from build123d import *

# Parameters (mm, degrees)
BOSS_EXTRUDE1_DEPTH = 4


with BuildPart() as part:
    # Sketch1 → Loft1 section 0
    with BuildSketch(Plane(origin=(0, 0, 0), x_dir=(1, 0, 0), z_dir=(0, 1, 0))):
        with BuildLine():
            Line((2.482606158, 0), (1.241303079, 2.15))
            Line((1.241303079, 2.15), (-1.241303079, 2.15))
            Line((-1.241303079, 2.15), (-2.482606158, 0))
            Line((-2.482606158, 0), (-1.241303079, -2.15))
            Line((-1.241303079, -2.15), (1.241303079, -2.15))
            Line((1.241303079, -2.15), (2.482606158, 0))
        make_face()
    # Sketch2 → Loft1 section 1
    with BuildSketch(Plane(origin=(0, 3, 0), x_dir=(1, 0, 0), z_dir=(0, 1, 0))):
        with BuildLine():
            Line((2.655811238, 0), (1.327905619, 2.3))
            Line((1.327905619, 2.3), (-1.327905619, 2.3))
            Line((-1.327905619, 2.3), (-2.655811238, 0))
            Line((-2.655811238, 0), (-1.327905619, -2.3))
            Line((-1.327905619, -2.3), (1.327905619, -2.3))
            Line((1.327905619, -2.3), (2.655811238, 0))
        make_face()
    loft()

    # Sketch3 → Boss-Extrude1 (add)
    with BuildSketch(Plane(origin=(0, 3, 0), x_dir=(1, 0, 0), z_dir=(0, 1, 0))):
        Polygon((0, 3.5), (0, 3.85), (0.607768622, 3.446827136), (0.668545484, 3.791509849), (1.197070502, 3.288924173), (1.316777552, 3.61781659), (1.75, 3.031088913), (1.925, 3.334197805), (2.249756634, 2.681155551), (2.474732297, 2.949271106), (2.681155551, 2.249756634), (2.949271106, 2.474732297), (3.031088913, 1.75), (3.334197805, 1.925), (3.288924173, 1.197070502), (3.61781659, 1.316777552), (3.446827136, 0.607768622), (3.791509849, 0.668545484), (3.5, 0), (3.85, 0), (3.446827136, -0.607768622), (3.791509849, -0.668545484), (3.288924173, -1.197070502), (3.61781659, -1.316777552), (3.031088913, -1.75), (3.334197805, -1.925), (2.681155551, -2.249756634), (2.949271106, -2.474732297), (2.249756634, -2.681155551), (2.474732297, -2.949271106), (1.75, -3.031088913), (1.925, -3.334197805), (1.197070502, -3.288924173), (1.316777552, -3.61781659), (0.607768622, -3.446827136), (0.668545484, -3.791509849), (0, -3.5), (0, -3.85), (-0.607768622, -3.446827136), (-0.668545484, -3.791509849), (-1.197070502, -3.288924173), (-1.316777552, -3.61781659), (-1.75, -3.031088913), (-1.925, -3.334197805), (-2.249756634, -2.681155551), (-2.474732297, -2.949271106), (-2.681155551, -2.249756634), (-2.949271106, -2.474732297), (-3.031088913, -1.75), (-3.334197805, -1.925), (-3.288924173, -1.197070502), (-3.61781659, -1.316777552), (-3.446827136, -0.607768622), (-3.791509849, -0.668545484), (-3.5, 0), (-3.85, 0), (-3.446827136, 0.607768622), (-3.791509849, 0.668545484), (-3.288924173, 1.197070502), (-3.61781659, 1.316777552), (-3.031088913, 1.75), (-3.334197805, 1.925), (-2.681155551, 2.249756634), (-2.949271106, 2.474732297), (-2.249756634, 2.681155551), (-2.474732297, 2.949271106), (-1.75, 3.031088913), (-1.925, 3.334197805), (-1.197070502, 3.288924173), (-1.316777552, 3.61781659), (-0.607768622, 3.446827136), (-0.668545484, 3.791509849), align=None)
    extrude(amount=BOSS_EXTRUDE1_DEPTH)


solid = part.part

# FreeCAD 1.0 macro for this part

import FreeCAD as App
import Part
import Sketcher

V = App.Vector
Q = App.Units.Quantity

doc = App.newDocument("Part")
body = doc.addObject("PartDesign::Body", "Body")

# Sketch on XZ plane
sketch1 = doc.addObject("Sketcher::SketchObject", "Sketch")
body.addObject(sketch1)
sketch1.AttachmentSupport = (doc.XZ_Plane, [""])
sketch1.MapMode = "FlatFace"
sketch1.addGeometry(Part.LineSegment(V(2.5, 0, 0), V(1.2, -2.1, 0)), False)
sketch1.addGeometry(Part.LineSegment(V(1.2, -2.1, 0), V(-1.2, -2.1, 0)), False)
sketch1.addGeometry(Part.LineSegment(V(-1.2, -2.1, 0), V(-2.5, 0, 0)), False)
sketch1.addGeometry(Part.LineSegment(V(-2.5, 0, 0), V(-1.2, 2.1, 0)), False)
sketch1.addGeometry(Part.LineSegment(V(-1.2, 2.1, 0), V(1.2, 2.1, 0)), False)
sketch1.addGeometry(Part.LineSegment(V(1.2, 2.1, 0), V(2.5, 0, 0)), False)
sketch1.addConstraint(Sketcher.Constraint("Coincident", 0, 2, 1, 1))
sketch1.addConstraint(Sketcher.Constraint("Coincident", 1, 2, 2, 1))
sketch1.addConstraint(Sketcher.Constraint("Coincident", 2, 2, 3, 1))
sketch1.addConstraint(Sketcher.Constraint("Coincident", 3, 2, 4, 1))
sketch1.addConstraint(Sketcher.Constraint("Coincident", 4, 2, 5, 1))
sketch1.addConstraint(Sketcher.Constraint("Coincident", 5, 2, 0, 1))
sketch1.addConstraint(Sketcher.Constraint("Horizontal", 1))
sketch1.addConstraint(Sketcher.Constraint("Horizontal", 4))
sketch1.addConstraint(Sketcher.Constraint("Symmetric", 0, 2, 3, 2, -1, 1))
sketch1.addConstraint(Sketcher.Constraint("Symmetric", 2, 2, 5, 2, -1, 1))
sketch1.addConstraint(Sketcher.Constraint("PointOnObject", 2, 2, -1))
sketch1.addConstraint(Sketcher.Constraint("Parallel", 2, 5))
sketch1.addConstraint(Sketcher.Constraint("Vertical", 1, 2, 3, 2))
sketch1.addConstraint(Sketcher.Constraint("Angle", 0, Q("-120 deg")))
sketch1.addConstraint(Sketcher.Constraint("DistanceY", 1, 2, 3, 2, Q("4.3 mm")))
sketch1.addConstraint(Sketcher.Constraint("DistanceX", 1, 2, 1, 1, Q("2.482606 mm")))

# Sketch on XZ plane
sketch2 = doc.addObject("Sketcher::SketchObject", "Sketch001")
body.addObject(sketch2)
sketch2.AttachmentSupport = (doc.XZ_Plane, [""])
sketch2.MapMode = "FlatFace"
sketch2.AttachmentOffset = App.Placement(V(0, 0, -3), App.Rotation())
sketch2.addGeometry(Part.LineSegment(V(2.7, 0, 0), V(1.3, -2.3, 0)), False)
sketch2.addGeometry(Part.LineSegment(V(1.3, -2.3, 0), V(-1.3, -2.3, 0)), False)
sketch2.addGeometry(Part.LineSegment(V(-1.3, -2.3, 0), V(-2.7, 0, 0)), False)
sketch2.addGeometry(Part.LineSegment(V(-2.7, 0, 0), V(-1.3, 2.3, 0)), False)
sketch2.addGeometry(Part.LineSegment(V(-1.3, 2.3, 0), V(1.3, 2.3, 0)), False)
sketch2.addGeometry(Part.LineSegment(V(1.3, 2.3, 0), V(2.7, 0, 0)), False)
sketch2.addConstraint(Sketcher.Constraint("Coincident", 0, 2, 1, 1))
sketch2.addConstraint(Sketcher.Constraint("Coincident", 1, 2, 2, 1))
sketch2.addConstraint(Sketcher.Constraint("Coincident", 2, 2, 3, 1))
sketch2.addConstraint(Sketcher.Constraint("Coincident", 3, 2, 4, 1))
sketch2.addConstraint(Sketcher.Constraint("Coincident", 4, 2, 5, 1))
sketch2.addConstraint(Sketcher.Constraint("Coincident", 5, 2, 0, 1))
sketch2.addConstraint(Sketcher.Constraint("Horizontal", 1))
sketch2.addConstraint(Sketcher.Constraint("Horizontal", 4))
sketch2.addConstraint(Sketcher.Constraint("Symmetric", 0, 2, 3, 2, -1, 1))
sketch2.addConstraint(Sketcher.Constraint("Symmetric", 2, 2, 5, 2, -1, 1))
sketch2.addConstraint(Sketcher.Constraint("PointOnObject", 2, 2, -1))
sketch2.addConstraint(Sketcher.Constraint("Parallel", 2, 5))
sketch2.addConstraint(Sketcher.Constraint("Vertical", 1, 2, 3, 2))
sketch2.addConstraint(Sketcher.Constraint("Angle", 0, Q("-120 deg")))
sketch2.addConstraint(Sketcher.Constraint("DistanceY", 0, 2, -1, 1, Q("2.3 mm")))
sketch2.addConstraint(Sketcher.Constraint("DistanceX", 1, 2, 1, 1, Q("2.655811 mm")))

additiveloft = doc.addObject("PartDesign::AdditiveLoft", "AdditiveLoft")
body.addObject(additiveloft)
additiveloft.Profile = sketch1
additiveloft.Sections = [sketch2]

# Sketch on XZ plane
sketch3 = doc.addObject("Sketcher::SketchObject", "Sketch002")
body.addObject(sketch3)
sketch3.AttachmentSupport = (doc.XZ_Plane, [""])
sketch3.MapMode = "FlatFace"
sketch3.AttachmentOffset = App.Placement(V(0, 0, -3), App.Rotation())
sketch3.addGeometry(Part.LineSegment(V(0, -3.85, 0), V(0, -3.5, 0)), False)
sketch3.addGeometry(Part.LineSegment(V(0, -3.5, 0), V(-0.67, -3.79, 0)), False)
sketch3.addGeometry(Part.LineSegment(V(-0.67, -3.79, 0), V(-0.61, -3.45, 0)), False)
sketch3.addGeometry(Part.LineSegment(V(-0.61, -3.45, 0), V(-1.32, -3.62, 0)), False)
sketch3.addGeometry(Part.LineSegment(V(-1.32, -3.62, 0), V(-1.2, -3.29, 0)), False)
sketch3.addGeometry(Part.LineSegment(V(-1.2, -3.29, 0), V(-1.93, -3.33, 0)), False)
sketch3.addGeometry(Part.LineSegment(V(-1.93, -3.33, 0), V(-1.75, -3.03, 0)), False)
sketch3.addGeometry(Part.LineSegment(V(-1.75, -3.03, 0), V(-2.47, -2.95, 0)), False)
sketch3.addGeometry(Part.LineSegment(V(-2.47, -2.95, 0), V(-2.25, -2.68, 0)), False)
sketch3.addGeometry(Part.LineSegment(V(-2.25, -2.68, 0), V(-2.95, -2.47, 0)), False)
sketch3.addGeometry(Part.LineSegment(V(-2.95, -2.47, 0), V(-2.68, -2.25, 0)), False)
sketch3.addGeometry(Part.LineSegment(V(-2.68, -2.25, 0), V(-3.33, -1.93, 0)), False)
sketch3.addGeometry(Part.LineSegment(V(-3.33, -1.93, 0), V(-3.03, -1.75, 0)), False)
sketch3.addGeometry(Part.LineSegment(V(-3.03, -1.75, 0), V(-3.62, -1.32, 0)), False)
sketch3.addGeometry(Part.LineSegment(V(-3.62, -1.32, 0), V(-3.29, -1.2, 0)), False)
sketch3.addGeometry(Part.LineSegment(V(-3.29, -1.2, 0), V(-3.79, -0.67, 0)), False)
sketch3.addGeometry(Part.LineSegment(V(-3.79, -0.67, 0), V(-3.45, -0.61, 0)), False)
sketch3.addGeometry(Part.LineSegment(V(-3.45, -0.61, 0), V(-3.85, 0, 0)), False)
sketch3.addGeometry(Part.LineSegment(V(-3.85, 0, 0), V(-3.5, 0, 0)), False)
sketch3.addGeometry(Part.LineSegment(V(-3.5, 0, 0), V(-3.79, 0.67, 0)), False)
sketch3.addGeometry(Part.LineSegment(V(-3.79, 0.67, 0), V(-3.45, 0.61, 0)), False)
sketch3.addGeometry(Part.LineSegment(V(-3.45, 0.61, 0), V(-3.62, 1.32, 0)), False)
sketch3.addGeometry(Part.LineSegment(V(-3.62, 1.32, 0), V(-3.29, 1.2, 0)), False)
sketch3.addGeometry(Part.LineSegment(V(-3.29, 1.2, 0), V(-3.33, 1.93, 0)), False)
sketch3.addGeometry(Part.LineSegment(V(-3.33, 1.93, 0), V(-3.03, 1.75, 0)), False)
sketch3.addGeometry(Part.LineSegment(V(-3.03, 1.75, 0), V(-2.95, 2.47, 0)), False)
sketch3.addGeometry(Part.LineSegment(V(-2.95, 2.47, 0), V(-2.68, 2.25, 0)), False)
sketch3.addGeometry(Part.LineSegment(V(-2.68, 2.25, 0), V(-2.47, 2.95, 0)), False)
sketch3.addGeometry(Part.LineSegment(V(-2.47, 2.95, 0), V(-2.25, 2.68, 0)), False)
sketch3.addGeometry(Part.LineSegment(V(-2.25, 2.68, 0), V(-1.93, 3.33, 0)), False)
sketch3.addGeometry(Part.LineSegment(V(-1.93, 3.33, 0), V(-1.75, 3.03, 0)), False)
sketch3.addGeometry(Part.LineSegment(V(-1.75, 3.03, 0), V(-1.32, 3.62, 0)), False)
sketch3.addGeometry(Part.LineSegment(V(-1.32, 3.62, 0), V(-1.2, 3.29, 0)), False)
sketch3.addGeometry(Part.LineSegment(V(-1.2, 3.29, 0), V(-0.67, 3.79, 0)), False)
sketch3.addGeometry(Part.LineSegment(V(-0.67, 3.79, 0), V(-0.61, 3.45, 0)), False)
sketch3.addGeometry(Part.LineSegment(V(-0.61, 3.45, 0), V(0, 3.85, 0)), False)
sketch3.addGeometry(Part.LineSegment(V(0, 3.85, 0), V(0, 3.5, 0)), False)
sketch3.addGeometry(Part.LineSegment(V(0, 3.5, 0), V(0.67, 3.79, 0)), False)
sketch3.addGeometry(Part.LineSegment(V(0.67, 3.79, 0), V(0.61, 3.45, 0)), False)
sketch3.addGeometry(Part.LineSegment(V(0.61, 3.45, 0), V(1.32, 3.62, 0)), False)
sketch3.addGeometry(Part.LineSegment(V(1.32, 3.62, 0), V(1.2, 3.29, 0)), False)
sketch3.addGeometry(Part.LineSegment(V(1.2, 3.29, 0), V(1.93, 3.33, 0)), False)
sketch3.addGeometry(Part.LineSegment(V(1.93, 3.33, 0), V(1.75, 3.03, 0)), False)
sketch3.addGeometry(Part.LineSegment(V(1.75, 3.03, 0), V(2.47, 2.95, 0)), False)
sketch3.addGeometry(Part.LineSegment(V(2.47, 2.95, 0), V(2.25, 2.68, 0)), False)
sketch3.addGeometry(Part.LineSegment(V(2.25, 2.68, 0), V(2.95, 2.47, 0)), False)
sketch3.addGeometry(Part.LineSegment(V(2.95, 2.47, 0), V(2.68, 2.25, 0)), False)
sketch3.addGeometry(Part.LineSegment(V(2.68, 2.25, 0), V(3.33, 1.93, 0)), False)
sketch3.addGeometry(Part.LineSegment(V(3.33, 1.93, 0), V(3.03, 1.75, 0)), False)
sketch3.addGeometry(Part.LineSegment(V(3.03, 1.75, 0), V(3.62, 1.32, 0)), False)
sketch3.addGeometry(Part.LineSegment(V(3.62, 1.32, 0), V(3.29, 1.2, 0)), False)
sketch3.addGeometry(Part.LineSegment(V(3.29, 1.2, 0), V(3.79, 0.67, 0)), False)
sketch3.addGeometry(Part.LineSegment(V(3.79, 0.67, 0), V(3.45, 0.61, 0)), False)
sketch3.addGeometry(Part.LineSegment(V(3.45, 0.61, 0), V(3.85, 0, 0)), False)
sketch3.addGeometry(Part.LineSegment(V(3.85, 0, 0), V(3.5, 0, 0)), False)
sketch3.addGeometry(Part.LineSegment(V(3.5, 0, 0), V(3.79, -0.67, 0)), False)
sketch3.addGeometry(Part.LineSegment(V(3.79, -0.67, 0), V(3.45, -0.61, 0)), False)
sketch3.addGeometry(Part.LineSegment(V(3.45, -0.61, 0), V(3.62, -1.32, 0)), False)
sketch3.addGeometry(Part.LineSegment(V(3.62, -1.32, 0), V(3.29, -1.2, 0)), False)
sketch3.addGeometry(Part.LineSegment(V(3.29, -1.2, 0), V(3.33, -1.93, 0)), False)
sketch3.addGeometry(Part.LineSegment(V(3.33, -1.93, 0), V(3.03, -1.75, 0)), False)
sketch3.addGeometry(Part.LineSegment(V(3.03, -1.75, 0), V(2.95, -2.47, 0)), False)
sketch3.addGeometry(Part.LineSegment(V(2.95, -2.47, 0), V(2.68, -2.25, 0)), False)
sketch3.addGeometry(Part.LineSegment(V(2.68, -2.25, 0), V(2.47, -2.95, 0)), False)
sketch3.addGeometry(Part.LineSegment(V(2.47, -2.95, 0), V(2.25, -2.68, 0)), False)
sketch3.addGeometry(Part.LineSegment(V(2.25, -2.68, 0), V(1.93, -3.33, 0)), False)
sketch3.addGeometry(Part.LineSegment(V(1.93, -3.33, 0), V(1.75, -3.03, 0)), False)
sketch3.addGeometry(Part.LineSegment(V(1.75, -3.03, 0), V(1.32, -3.62, 0)), False)
sketch3.addGeometry(Part.LineSegment(V(1.32, -3.62, 0), V(1.2, -3.29, 0)), False)
sketch3.addGeometry(Part.LineSegment(V(1.2, -3.29, 0), V(0.67, -3.79, 0)), False)
sketch3.addGeometry(Part.LineSegment(V(0.67, -3.79, 0), V(0.61, -3.45, 0)), False)
sketch3.addGeometry(Part.LineSegment(V(0.61, -3.45, 0), V(0, -3.85, 0)), False)
sketch3.addConstraint(Sketcher.Constraint("Coincident", 0, 2, 1, 1))
sketch3.addConstraint(Sketcher.Constraint("Coincident", 1, 2, 2, 1))
sketch3.addConstraint(Sketcher.Constraint("Coincident", 2, 2, 3, 1))
sketch3.addConstraint(Sketcher.Constraint("Coincident", 3, 2, 4, 1))
sketch3.addConstraint(Sketcher.Constraint("Coincident", 4, 2, 5, 1))
sketch3.addConstraint(Sketcher.Constraint("Coincident", 5, 2, 6, 1))
sketch3.addConstraint(Sketcher.Constraint("Coincident", 6, 2, 7, 1))
sketch3.addConstraint(Sketcher.Constraint("Coincident", 7, 2, 8, 1))
sketch3.addConstraint(Sketcher.Constraint("Coincident", 8, 2, 9, 1))
sketch3.addConstraint(Sketcher.Constraint("Coincident", 9, 2, 10, 1))
sketch3.addConstraint(Sketcher.Constraint("Coincident", 10, 2, 11, 1))
sketch3.addConstraint(Sketcher.Constraint("Coincident", 11, 2, 12, 1))
sketch3.addConstraint(Sketcher.Constraint("Coincident", 12, 2, 13, 1))
sketch3.addConstraint(Sketcher.Constraint("Coincident", 13, 2, 14, 1))
sketch3.addConstraint(Sketcher.Constraint("Coincident", 14, 2, 15, 1))
sketch3.addConstraint(Sketcher.Constraint("Coincident", 15, 2, 16, 1))
sketch3.addConstraint(Sketcher.Constraint("Coincident", 16, 2, 17, 1))
sketch3.addConstraint(Sketcher.Constraint("Coincident", 17, 2, 18, 1))
sketch3.addConstraint(Sketcher.Constraint("Coincident", 18, 2, 19, 1))
sketch3.addConstraint(Sketcher.Constraint("Coincident", 19, 2, 20, 1))
sketch3.addConstraint(Sketcher.Constraint("Coincident", 20, 2, 21, 1))
sketch3.addConstraint(Sketcher.Constraint("Coincident", 21, 2, 22, 1))
sketch3.addConstraint(Sketcher.Constraint("Coincident", 22, 2, 23, 1))
sketch3.addConstraint(Sketcher.Constraint("Coincident", 23, 2, 24, 1))
sketch3.addConstraint(Sketcher.Constraint("Coincident", 24, 2, 25, 1))
sketch3.addConstraint(Sketcher.Constraint("Coincident", 25, 2, 26, 1))
sketch3.addConstraint(Sketcher.Constraint("Coincident", 26, 2, 27, 1))
sketch3.addConstraint(Sketcher.Constraint("Coincident", 27, 2, 28, 1))
sketch3.addConstraint(Sketcher.Constraint("Coincident", 28, 2, 29, 1))
sketch3.addConstraint(Sketcher.Constraint("Coincident", 29, 2, 30, 1))
sketch3.addConstraint(Sketcher.Constraint("Coincident", 30, 2, 31, 1))
sketch3.addConstraint(Sketcher.Constraint("Coincident", 31, 2, 32, 1))
sketch3.addConstraint(Sketcher.Constraint("Coincident", 32, 2, 33, 1))
sketch3.addConstraint(Sketcher.Constraint("Coincident", 33, 2, 34, 1))
sketch3.addConstraint(Sketcher.Constraint("Coincident", 34, 2, 35, 1))
sketch3.addConstraint(Sketcher.Constraint("Coincident", 35, 2, 36, 1))
sketch3.addConstraint(Sketcher.Constraint("Coincident", 36, 2, 37, 1))
sketch3.addConstraint(Sketcher.Constraint("Coincident", 37, 2, 38, 1))
sketch3.addConstraint(Sketcher.Constraint("Coincident", 38, 2, 39, 1))
sketch3.addConstraint(Sketcher.Constraint("Coincident", 39, 2, 40, 1))
sketch3.addConstraint(Sketcher.Constraint("Coincident", 40, 2, 41, 1))
sketch3.addConstraint(Sketcher.Constraint("Coincident", 41, 2, 42, 1))
sketch3.addConstraint(Sketcher.Constraint("Coincident", 42, 2, 43, 1))
sketch3.addConstraint(Sketcher.Constraint("Coincident", 43, 2, 44, 1))
sketch3.addConstraint(Sketcher.Constraint("Coincident", 44, 2, 45, 1))
sketch3.addConstraint(Sketcher.Constraint("Coincident", 45, 2, 46, 1))
sketch3.addConstraint(Sketcher.Constraint("Coincident", 46, 2, 47, 1))
sketch3.addConstraint(Sketcher.Constraint("Coincident", 47, 2, 48, 1))
sketch3.addConstraint(Sketcher.Constraint("Coincident", 48, 2, 49, 1))
sketch3.addConstraint(Sketcher.Constraint("Coincident", 49, 2, 50, 1))
sketch3.addConstraint(Sketcher.Constraint("Coincident", 50, 2, 51, 1))
sketch3.addConstraint(Sketcher.Constraint("Coincident", 51, 2, 52, 1))
sketch3.addConstraint(Sketcher.Constraint("Coincident", 52, 2, 53, 1))
sketch3.addConstraint(Sketcher.Constraint("Coincident", 53, 2, 54, 1))
sketch3.addConstraint(Sketcher.Constraint("Coincident", 54, 2, 55, 1))
sketch3.addConstraint(Sketcher.Constraint("Coincident", 55, 2, 56, 1))
sketch3.addConstraint(Sketcher.Constraint("Coincident", 56, 2, 57, 1))
sketch3.addConstraint(Sketcher.Constraint("Coincident", 57, 2, 58, 1))
sketch3.addConstraint(Sketcher.Constraint("Coincident", 58, 2, 59, 1))
sketch3.addConstraint(Sketcher.Constraint("Coincident", 59, 2, 60, 1))
sketch3.addConstraint(Sketcher.Constraint("Coincident", 60, 2, 61, 1))
sketch3.addConstraint(Sketcher.Constraint("Coincident", 61, 2, 62, 1))
sketch3.addConstraint(Sketcher.Constraint("Coincident", 62, 2, 63, 1))
sketch3.addConstraint(Sketcher.Constraint("Coincident", 63, 2, 64, 1))
sketch3.addConstraint(Sketcher.Constraint("Coincident", 64, 2, 65, 1))
sketch3.addConstraint(Sketcher.Constraint("Coincident", 65, 2, 66, 1))
sketch3.addConstraint(Sketcher.Constraint("Coincident", 66, 2, 67, 1))
sketch3.addConstraint(Sketcher.Constraint("Coincident", 67, 2, 68, 1))
sketch3.addConstraint(Sketcher.Constraint("Coincident", 68, 2, 69, 1))
sketch3.addConstraint(Sketcher.Constraint("Coincident", 69, 2, 70, 1))
sketch3.addConstraint(Sketcher.Constraint("Coincident", 70, 2, 71, 1))
sketch3.addConstraint(Sketcher.Constraint("Coincident", 71, 2, 0, 1))
sketch3.addConstraint(Sketcher.Constraint("Vertical", 0))
sketch3.addConstraint(Sketcher.Constraint("Horizontal", 18))
sketch3.addConstraint(Sketcher.Constraint("Vertical", 36))
sketch3.addConstraint(Sketcher.Constraint("Horizontal", 54))
sketch3.addConstraint(Sketcher.Constraint("Symmetric", 0, 2, 36, 2, -1, 1))
sketch3.addConstraint(Sketcher.Constraint("Symmetric", 1, 2, 37, 2, -1, 1))
sketch3.addConstraint(Sketcher.Constraint("Symmetric", 2, 2, 38, 2, -1, 1))
sketch3.addConstraint(Sketcher.Constraint("Symmetric", 3, 2, 39, 2, -1, 1))
sketch3.addConstraint(Sketcher.Constraint("Symmetric", 4, 2, 40, 2, -1, 1))
sketch3.addConstraint(Sketcher.Constraint("Symmetric", 5, 2, 41, 2, -1, 1))
sketch3.addConstraint(Sketcher.Constraint("Symmetric", 6, 2, 42, 2, -1, 1))
sketch3.addConstraint(Sketcher.Constraint("Symmetric", 7, 2, 43, 2, -1, 1))
sketch3.addConstraint(Sketcher.Constraint("Symmetric", 8, 2, 44, 2, -1, 1))
sketch3.addConstraint(Sketcher.Constraint("Symmetric", 9, 2, 45, 2, -1, 1))
sketch3.addConstraint(Sketcher.Constraint("Symmetric", 10, 2, 46, 2, -1, 1))
sketch3.addConstraint(Sketcher.Constraint("Symmetric", 11, 2, 47, 2, -1, 1))
sketch3.addConstraint(Sketcher.Constraint("Symmetric", 12, 2, 48, 2, -1, 1))
sketch3.addConstraint(Sketcher.Constraint("Symmetric", 13, 2, 49, 2, -1, 1))
sketch3.addConstraint(Sketcher.Constraint("Symmetric", 14, 2, 50, 2, -1, 1))
sketch3.addConstraint(Sketcher.Constraint("Symmetric", 15, 2, 51, 2, -1, 1))
sketch3.addConstraint(Sketcher.Constraint("Symmetric", 16, 2, 52, 2, -1, 1))
sketch3.addConstraint(Sketcher.Constraint("Symmetric", 17, 2, 53, 2, -1, 1))
sketch3.addConstraint(Sketcher.Constraint("Symmetric", 19, 2, 55, 2, -1, 1))
sketch3.addConstraint(Sketcher.Constraint("Symmetric", 20, 2, 56, 2, -1, 1))
sketch3.addConstraint(Sketcher.Constraint("Symmetric", 21, 2, 57, 2, -1, 1))
sketch3.addConstraint(Sketcher.Constraint("Symmetric", 22, 2, 58, 2, -1, 1))
sketch3.addConstraint(Sketcher.Constraint("Symmetric", 23, 2, 59, 2, -1, 1))
sketch3.addConstraint(Sketcher.Constraint("Symmetric", 24, 2, 60, 2, -1, 1))
sketch3.addConstraint(Sketcher.Constraint("Symmetric", 25, 2, 61, 2, -1, 1))
sketch3.addConstraint(Sketcher.Constraint("Symmetric", 26, 2, 62, 2, -1, 1))
sketch3.addConstraint(Sketcher.Constraint("Symmetric", 27, 2, 63, 2, -1, 1))
sketch3.addConstraint(Sketcher.Constraint("Symmetric", 28, 2, 64, 2, -1, 1))
sketch3.addConstraint(Sketcher.Constraint("Symmetric", 29, 2, 65, 2, -1, 1))
sketch3.addConstraint(Sketcher.Constraint("Symmetric", 30, 2, 66, 2, -1, 1))
sketch3.addConstraint(Sketcher.Constraint("Symmetric", 31, 2, 67, 2, -1, 1))
sketch3.addConstraint(Sketcher.Constraint("Symmetric", 32, 2, 68, 2, -1, 1))
sketch3.addConstraint(Sketcher.Constraint("Symmetric", 33, 2, 69, 2, -1, 1))
sketch3.addConstraint(Sketcher.Constraint("Symmetric", 34, 2, 70, 2, -1, 1))
sketch3.addConstraint(Sketcher.Constraint("Symmetric", 33, 2, 37, 2, -2))
sketch3.addConstraint(Sketcher.Constraint("Symmetric", 34, 2, 38, 2, -2))
sketch3.addConstraint(Sketcher.Constraint("Symmetric", 31, 2, 39, 2, -2))
sketch3.addConstraint(Sketcher.Constraint("Symmetric", 32, 2, 40, 2, -2))
sketch3.addConstraint(Sketcher.Constraint("Symmetric", 29, 2, 41, 2, -2))
sketch3.addConstraint(Sketcher.Constraint("Symmetric", 30, 2, 42, 2, -2))
sketch3.addConstraint(Sketcher.Constraint("Symmetric", 27, 2, 43, 2, -2))
sketch3.addConstraint(Sketcher.Constraint("Symmetric", 28, 2, 44, 2, -2))
sketch3.addConstraint(Sketcher.Constraint("Symmetric", 25, 2, 45, 2, -2))
sketch3.addConstraint(Sketcher.Constraint("Symmetric", 26, 2, 46, 2, -2))
sketch3.addConstraint(Sketcher.Constraint("Symmetric", 23, 2, 47, 2, -2))
sketch3.addConstraint(Sketcher.Constraint("Symmetric", 24, 2, 48, 2, -2))
sketch3.addConstraint(Sketcher.Constraint("Symmetric", 21, 2, 49, 2, -2))
sketch3.addConstraint(Sketcher.Constraint("Symmetric", 22, 2, 50, 2, -2))
sketch3.addConstraint(Sketcher.Constraint("Symmetric", 19, 2, 51, 2, -2))
sketch3.addConstraint(Sketcher.Constraint("Symmetric", 20, 2, 52, 2, -2))
sketch3.addConstraint(Sketcher.Constraint("Symmetric", 18, 2, 54, 2, -2))
sketch3.addConstraint(Sketcher.Constraint("Symmetric", 35, 2, 71, 2, -1))
sketch3.addConstraint(Sketcher.Constraint("Perpendicular", 1, 19))
sketch3.addConstraint(Sketcher.Constraint("Perpendicular", 2, 20))
sketch3.addConstraint(Sketcher.Constraint("Perpendicular", 3, 21))
sketch3.addConstraint(Sketcher.Constraint("Perpendicular", 4, 22))
sketch3.addConstraint(Sketcher.Constraint("Perpendicular", 5, 23))
sketch3.addConstraint(Sketcher.Constraint("Perpendicular", 6, 24))
sketch3.addConstraint(Sketcher.Constraint("Perpendicular", 7, 25))
sketch3.addConstraint(Sketcher.Constraint("Perpendicular", 8, 26))
sketch3.addConstraint(Sketcher.Constraint("Perpendicular", 9, 27))
sketch3.addConstraint(Sketcher.Constraint("Perpendicular", 11, 29))
sketch3.addConstraint(Sketcher.Constraint("Perpendicular", 13, 31))
sketch3.addConstraint(Sketcher.Constraint("Perpendicular", 15, 33))
sketch3.addConstraint(Sketcher.Constraint("Perpendicular", 17, 35))
sketch3.addConstraint(Sketcher.Constraint("Equal", 54, 0))
sketch3.addConstraint(Sketcher.Constraint("Equal", 1, 3))
sketch3.addConstraint(Sketcher.Constraint("Equal", 2, 4))
sketch3.addConstraint(Sketcher.Constraint("Equal", 3, 5))
sketch3.addConstraint(Sketcher.Constraint("Equal", 4, 6))
sketch3.addConstraint(Sketcher.Constraint("Equal", 5, 7))
sketch3.addConstraint(Sketcher.Constraint("Equal", 6, 8))
sketch3.addConstraint(Sketcher.Constraint("Equal", 7, 9))
sketch3.addConstraint(Sketcher.Constraint("Equal", 8, 10))
sketch3.addConstraint(Sketcher.Constraint("Equal", 9, 11))
sketch3.addConstraint(Sketcher.Constraint("Equal", 10, 12))
sketch3.addConstraint(Sketcher.Constraint("Equal", 11, 13))
sketch3.addConstraint(Sketcher.Constraint("Equal", 12, 14))
sketch3.addConstraint(Sketcher.Constraint("Equal", 13, 15))
sketch3.addConstraint(Sketcher.Constraint("Equal", 14, 16))
sketch3.addConstraint(Sketcher.Constraint("Equal", 15, 17))
sketch3.addConstraint(Sketcher.Constraint("Angle", 2, Q("80 deg")))
sketch3.addConstraint(Sketcher.Constraint("Angle", 4, Q("70 deg")))
sketch3.addConstraint(Sketcher.Constraint("Angle", 6, Q("60 deg")))
sketch3.addConstraint(Sketcher.Constraint("Angle", 8, Q("50 deg")))
sketch3.addConstraint(Sketcher.Constraint("DistanceX", 18, 1, 18, 2, Q("0.35 mm")))
sketch3.addConstraint(Sketcher.Constraint("DistanceY", 0, 2, -1, 1, Q("3.5 mm")))
sketch3.addConstraint(Sketcher.Constraint("Distance", 2, Q("0.35 mm")))
pad1 = doc.addObject("PartDesign::Pad", "Pad")
body.addObject(pad1)
pad1.Profile = sketch3
pad1.Length = 4
pad1.Reversed = True

doc.recompute()
